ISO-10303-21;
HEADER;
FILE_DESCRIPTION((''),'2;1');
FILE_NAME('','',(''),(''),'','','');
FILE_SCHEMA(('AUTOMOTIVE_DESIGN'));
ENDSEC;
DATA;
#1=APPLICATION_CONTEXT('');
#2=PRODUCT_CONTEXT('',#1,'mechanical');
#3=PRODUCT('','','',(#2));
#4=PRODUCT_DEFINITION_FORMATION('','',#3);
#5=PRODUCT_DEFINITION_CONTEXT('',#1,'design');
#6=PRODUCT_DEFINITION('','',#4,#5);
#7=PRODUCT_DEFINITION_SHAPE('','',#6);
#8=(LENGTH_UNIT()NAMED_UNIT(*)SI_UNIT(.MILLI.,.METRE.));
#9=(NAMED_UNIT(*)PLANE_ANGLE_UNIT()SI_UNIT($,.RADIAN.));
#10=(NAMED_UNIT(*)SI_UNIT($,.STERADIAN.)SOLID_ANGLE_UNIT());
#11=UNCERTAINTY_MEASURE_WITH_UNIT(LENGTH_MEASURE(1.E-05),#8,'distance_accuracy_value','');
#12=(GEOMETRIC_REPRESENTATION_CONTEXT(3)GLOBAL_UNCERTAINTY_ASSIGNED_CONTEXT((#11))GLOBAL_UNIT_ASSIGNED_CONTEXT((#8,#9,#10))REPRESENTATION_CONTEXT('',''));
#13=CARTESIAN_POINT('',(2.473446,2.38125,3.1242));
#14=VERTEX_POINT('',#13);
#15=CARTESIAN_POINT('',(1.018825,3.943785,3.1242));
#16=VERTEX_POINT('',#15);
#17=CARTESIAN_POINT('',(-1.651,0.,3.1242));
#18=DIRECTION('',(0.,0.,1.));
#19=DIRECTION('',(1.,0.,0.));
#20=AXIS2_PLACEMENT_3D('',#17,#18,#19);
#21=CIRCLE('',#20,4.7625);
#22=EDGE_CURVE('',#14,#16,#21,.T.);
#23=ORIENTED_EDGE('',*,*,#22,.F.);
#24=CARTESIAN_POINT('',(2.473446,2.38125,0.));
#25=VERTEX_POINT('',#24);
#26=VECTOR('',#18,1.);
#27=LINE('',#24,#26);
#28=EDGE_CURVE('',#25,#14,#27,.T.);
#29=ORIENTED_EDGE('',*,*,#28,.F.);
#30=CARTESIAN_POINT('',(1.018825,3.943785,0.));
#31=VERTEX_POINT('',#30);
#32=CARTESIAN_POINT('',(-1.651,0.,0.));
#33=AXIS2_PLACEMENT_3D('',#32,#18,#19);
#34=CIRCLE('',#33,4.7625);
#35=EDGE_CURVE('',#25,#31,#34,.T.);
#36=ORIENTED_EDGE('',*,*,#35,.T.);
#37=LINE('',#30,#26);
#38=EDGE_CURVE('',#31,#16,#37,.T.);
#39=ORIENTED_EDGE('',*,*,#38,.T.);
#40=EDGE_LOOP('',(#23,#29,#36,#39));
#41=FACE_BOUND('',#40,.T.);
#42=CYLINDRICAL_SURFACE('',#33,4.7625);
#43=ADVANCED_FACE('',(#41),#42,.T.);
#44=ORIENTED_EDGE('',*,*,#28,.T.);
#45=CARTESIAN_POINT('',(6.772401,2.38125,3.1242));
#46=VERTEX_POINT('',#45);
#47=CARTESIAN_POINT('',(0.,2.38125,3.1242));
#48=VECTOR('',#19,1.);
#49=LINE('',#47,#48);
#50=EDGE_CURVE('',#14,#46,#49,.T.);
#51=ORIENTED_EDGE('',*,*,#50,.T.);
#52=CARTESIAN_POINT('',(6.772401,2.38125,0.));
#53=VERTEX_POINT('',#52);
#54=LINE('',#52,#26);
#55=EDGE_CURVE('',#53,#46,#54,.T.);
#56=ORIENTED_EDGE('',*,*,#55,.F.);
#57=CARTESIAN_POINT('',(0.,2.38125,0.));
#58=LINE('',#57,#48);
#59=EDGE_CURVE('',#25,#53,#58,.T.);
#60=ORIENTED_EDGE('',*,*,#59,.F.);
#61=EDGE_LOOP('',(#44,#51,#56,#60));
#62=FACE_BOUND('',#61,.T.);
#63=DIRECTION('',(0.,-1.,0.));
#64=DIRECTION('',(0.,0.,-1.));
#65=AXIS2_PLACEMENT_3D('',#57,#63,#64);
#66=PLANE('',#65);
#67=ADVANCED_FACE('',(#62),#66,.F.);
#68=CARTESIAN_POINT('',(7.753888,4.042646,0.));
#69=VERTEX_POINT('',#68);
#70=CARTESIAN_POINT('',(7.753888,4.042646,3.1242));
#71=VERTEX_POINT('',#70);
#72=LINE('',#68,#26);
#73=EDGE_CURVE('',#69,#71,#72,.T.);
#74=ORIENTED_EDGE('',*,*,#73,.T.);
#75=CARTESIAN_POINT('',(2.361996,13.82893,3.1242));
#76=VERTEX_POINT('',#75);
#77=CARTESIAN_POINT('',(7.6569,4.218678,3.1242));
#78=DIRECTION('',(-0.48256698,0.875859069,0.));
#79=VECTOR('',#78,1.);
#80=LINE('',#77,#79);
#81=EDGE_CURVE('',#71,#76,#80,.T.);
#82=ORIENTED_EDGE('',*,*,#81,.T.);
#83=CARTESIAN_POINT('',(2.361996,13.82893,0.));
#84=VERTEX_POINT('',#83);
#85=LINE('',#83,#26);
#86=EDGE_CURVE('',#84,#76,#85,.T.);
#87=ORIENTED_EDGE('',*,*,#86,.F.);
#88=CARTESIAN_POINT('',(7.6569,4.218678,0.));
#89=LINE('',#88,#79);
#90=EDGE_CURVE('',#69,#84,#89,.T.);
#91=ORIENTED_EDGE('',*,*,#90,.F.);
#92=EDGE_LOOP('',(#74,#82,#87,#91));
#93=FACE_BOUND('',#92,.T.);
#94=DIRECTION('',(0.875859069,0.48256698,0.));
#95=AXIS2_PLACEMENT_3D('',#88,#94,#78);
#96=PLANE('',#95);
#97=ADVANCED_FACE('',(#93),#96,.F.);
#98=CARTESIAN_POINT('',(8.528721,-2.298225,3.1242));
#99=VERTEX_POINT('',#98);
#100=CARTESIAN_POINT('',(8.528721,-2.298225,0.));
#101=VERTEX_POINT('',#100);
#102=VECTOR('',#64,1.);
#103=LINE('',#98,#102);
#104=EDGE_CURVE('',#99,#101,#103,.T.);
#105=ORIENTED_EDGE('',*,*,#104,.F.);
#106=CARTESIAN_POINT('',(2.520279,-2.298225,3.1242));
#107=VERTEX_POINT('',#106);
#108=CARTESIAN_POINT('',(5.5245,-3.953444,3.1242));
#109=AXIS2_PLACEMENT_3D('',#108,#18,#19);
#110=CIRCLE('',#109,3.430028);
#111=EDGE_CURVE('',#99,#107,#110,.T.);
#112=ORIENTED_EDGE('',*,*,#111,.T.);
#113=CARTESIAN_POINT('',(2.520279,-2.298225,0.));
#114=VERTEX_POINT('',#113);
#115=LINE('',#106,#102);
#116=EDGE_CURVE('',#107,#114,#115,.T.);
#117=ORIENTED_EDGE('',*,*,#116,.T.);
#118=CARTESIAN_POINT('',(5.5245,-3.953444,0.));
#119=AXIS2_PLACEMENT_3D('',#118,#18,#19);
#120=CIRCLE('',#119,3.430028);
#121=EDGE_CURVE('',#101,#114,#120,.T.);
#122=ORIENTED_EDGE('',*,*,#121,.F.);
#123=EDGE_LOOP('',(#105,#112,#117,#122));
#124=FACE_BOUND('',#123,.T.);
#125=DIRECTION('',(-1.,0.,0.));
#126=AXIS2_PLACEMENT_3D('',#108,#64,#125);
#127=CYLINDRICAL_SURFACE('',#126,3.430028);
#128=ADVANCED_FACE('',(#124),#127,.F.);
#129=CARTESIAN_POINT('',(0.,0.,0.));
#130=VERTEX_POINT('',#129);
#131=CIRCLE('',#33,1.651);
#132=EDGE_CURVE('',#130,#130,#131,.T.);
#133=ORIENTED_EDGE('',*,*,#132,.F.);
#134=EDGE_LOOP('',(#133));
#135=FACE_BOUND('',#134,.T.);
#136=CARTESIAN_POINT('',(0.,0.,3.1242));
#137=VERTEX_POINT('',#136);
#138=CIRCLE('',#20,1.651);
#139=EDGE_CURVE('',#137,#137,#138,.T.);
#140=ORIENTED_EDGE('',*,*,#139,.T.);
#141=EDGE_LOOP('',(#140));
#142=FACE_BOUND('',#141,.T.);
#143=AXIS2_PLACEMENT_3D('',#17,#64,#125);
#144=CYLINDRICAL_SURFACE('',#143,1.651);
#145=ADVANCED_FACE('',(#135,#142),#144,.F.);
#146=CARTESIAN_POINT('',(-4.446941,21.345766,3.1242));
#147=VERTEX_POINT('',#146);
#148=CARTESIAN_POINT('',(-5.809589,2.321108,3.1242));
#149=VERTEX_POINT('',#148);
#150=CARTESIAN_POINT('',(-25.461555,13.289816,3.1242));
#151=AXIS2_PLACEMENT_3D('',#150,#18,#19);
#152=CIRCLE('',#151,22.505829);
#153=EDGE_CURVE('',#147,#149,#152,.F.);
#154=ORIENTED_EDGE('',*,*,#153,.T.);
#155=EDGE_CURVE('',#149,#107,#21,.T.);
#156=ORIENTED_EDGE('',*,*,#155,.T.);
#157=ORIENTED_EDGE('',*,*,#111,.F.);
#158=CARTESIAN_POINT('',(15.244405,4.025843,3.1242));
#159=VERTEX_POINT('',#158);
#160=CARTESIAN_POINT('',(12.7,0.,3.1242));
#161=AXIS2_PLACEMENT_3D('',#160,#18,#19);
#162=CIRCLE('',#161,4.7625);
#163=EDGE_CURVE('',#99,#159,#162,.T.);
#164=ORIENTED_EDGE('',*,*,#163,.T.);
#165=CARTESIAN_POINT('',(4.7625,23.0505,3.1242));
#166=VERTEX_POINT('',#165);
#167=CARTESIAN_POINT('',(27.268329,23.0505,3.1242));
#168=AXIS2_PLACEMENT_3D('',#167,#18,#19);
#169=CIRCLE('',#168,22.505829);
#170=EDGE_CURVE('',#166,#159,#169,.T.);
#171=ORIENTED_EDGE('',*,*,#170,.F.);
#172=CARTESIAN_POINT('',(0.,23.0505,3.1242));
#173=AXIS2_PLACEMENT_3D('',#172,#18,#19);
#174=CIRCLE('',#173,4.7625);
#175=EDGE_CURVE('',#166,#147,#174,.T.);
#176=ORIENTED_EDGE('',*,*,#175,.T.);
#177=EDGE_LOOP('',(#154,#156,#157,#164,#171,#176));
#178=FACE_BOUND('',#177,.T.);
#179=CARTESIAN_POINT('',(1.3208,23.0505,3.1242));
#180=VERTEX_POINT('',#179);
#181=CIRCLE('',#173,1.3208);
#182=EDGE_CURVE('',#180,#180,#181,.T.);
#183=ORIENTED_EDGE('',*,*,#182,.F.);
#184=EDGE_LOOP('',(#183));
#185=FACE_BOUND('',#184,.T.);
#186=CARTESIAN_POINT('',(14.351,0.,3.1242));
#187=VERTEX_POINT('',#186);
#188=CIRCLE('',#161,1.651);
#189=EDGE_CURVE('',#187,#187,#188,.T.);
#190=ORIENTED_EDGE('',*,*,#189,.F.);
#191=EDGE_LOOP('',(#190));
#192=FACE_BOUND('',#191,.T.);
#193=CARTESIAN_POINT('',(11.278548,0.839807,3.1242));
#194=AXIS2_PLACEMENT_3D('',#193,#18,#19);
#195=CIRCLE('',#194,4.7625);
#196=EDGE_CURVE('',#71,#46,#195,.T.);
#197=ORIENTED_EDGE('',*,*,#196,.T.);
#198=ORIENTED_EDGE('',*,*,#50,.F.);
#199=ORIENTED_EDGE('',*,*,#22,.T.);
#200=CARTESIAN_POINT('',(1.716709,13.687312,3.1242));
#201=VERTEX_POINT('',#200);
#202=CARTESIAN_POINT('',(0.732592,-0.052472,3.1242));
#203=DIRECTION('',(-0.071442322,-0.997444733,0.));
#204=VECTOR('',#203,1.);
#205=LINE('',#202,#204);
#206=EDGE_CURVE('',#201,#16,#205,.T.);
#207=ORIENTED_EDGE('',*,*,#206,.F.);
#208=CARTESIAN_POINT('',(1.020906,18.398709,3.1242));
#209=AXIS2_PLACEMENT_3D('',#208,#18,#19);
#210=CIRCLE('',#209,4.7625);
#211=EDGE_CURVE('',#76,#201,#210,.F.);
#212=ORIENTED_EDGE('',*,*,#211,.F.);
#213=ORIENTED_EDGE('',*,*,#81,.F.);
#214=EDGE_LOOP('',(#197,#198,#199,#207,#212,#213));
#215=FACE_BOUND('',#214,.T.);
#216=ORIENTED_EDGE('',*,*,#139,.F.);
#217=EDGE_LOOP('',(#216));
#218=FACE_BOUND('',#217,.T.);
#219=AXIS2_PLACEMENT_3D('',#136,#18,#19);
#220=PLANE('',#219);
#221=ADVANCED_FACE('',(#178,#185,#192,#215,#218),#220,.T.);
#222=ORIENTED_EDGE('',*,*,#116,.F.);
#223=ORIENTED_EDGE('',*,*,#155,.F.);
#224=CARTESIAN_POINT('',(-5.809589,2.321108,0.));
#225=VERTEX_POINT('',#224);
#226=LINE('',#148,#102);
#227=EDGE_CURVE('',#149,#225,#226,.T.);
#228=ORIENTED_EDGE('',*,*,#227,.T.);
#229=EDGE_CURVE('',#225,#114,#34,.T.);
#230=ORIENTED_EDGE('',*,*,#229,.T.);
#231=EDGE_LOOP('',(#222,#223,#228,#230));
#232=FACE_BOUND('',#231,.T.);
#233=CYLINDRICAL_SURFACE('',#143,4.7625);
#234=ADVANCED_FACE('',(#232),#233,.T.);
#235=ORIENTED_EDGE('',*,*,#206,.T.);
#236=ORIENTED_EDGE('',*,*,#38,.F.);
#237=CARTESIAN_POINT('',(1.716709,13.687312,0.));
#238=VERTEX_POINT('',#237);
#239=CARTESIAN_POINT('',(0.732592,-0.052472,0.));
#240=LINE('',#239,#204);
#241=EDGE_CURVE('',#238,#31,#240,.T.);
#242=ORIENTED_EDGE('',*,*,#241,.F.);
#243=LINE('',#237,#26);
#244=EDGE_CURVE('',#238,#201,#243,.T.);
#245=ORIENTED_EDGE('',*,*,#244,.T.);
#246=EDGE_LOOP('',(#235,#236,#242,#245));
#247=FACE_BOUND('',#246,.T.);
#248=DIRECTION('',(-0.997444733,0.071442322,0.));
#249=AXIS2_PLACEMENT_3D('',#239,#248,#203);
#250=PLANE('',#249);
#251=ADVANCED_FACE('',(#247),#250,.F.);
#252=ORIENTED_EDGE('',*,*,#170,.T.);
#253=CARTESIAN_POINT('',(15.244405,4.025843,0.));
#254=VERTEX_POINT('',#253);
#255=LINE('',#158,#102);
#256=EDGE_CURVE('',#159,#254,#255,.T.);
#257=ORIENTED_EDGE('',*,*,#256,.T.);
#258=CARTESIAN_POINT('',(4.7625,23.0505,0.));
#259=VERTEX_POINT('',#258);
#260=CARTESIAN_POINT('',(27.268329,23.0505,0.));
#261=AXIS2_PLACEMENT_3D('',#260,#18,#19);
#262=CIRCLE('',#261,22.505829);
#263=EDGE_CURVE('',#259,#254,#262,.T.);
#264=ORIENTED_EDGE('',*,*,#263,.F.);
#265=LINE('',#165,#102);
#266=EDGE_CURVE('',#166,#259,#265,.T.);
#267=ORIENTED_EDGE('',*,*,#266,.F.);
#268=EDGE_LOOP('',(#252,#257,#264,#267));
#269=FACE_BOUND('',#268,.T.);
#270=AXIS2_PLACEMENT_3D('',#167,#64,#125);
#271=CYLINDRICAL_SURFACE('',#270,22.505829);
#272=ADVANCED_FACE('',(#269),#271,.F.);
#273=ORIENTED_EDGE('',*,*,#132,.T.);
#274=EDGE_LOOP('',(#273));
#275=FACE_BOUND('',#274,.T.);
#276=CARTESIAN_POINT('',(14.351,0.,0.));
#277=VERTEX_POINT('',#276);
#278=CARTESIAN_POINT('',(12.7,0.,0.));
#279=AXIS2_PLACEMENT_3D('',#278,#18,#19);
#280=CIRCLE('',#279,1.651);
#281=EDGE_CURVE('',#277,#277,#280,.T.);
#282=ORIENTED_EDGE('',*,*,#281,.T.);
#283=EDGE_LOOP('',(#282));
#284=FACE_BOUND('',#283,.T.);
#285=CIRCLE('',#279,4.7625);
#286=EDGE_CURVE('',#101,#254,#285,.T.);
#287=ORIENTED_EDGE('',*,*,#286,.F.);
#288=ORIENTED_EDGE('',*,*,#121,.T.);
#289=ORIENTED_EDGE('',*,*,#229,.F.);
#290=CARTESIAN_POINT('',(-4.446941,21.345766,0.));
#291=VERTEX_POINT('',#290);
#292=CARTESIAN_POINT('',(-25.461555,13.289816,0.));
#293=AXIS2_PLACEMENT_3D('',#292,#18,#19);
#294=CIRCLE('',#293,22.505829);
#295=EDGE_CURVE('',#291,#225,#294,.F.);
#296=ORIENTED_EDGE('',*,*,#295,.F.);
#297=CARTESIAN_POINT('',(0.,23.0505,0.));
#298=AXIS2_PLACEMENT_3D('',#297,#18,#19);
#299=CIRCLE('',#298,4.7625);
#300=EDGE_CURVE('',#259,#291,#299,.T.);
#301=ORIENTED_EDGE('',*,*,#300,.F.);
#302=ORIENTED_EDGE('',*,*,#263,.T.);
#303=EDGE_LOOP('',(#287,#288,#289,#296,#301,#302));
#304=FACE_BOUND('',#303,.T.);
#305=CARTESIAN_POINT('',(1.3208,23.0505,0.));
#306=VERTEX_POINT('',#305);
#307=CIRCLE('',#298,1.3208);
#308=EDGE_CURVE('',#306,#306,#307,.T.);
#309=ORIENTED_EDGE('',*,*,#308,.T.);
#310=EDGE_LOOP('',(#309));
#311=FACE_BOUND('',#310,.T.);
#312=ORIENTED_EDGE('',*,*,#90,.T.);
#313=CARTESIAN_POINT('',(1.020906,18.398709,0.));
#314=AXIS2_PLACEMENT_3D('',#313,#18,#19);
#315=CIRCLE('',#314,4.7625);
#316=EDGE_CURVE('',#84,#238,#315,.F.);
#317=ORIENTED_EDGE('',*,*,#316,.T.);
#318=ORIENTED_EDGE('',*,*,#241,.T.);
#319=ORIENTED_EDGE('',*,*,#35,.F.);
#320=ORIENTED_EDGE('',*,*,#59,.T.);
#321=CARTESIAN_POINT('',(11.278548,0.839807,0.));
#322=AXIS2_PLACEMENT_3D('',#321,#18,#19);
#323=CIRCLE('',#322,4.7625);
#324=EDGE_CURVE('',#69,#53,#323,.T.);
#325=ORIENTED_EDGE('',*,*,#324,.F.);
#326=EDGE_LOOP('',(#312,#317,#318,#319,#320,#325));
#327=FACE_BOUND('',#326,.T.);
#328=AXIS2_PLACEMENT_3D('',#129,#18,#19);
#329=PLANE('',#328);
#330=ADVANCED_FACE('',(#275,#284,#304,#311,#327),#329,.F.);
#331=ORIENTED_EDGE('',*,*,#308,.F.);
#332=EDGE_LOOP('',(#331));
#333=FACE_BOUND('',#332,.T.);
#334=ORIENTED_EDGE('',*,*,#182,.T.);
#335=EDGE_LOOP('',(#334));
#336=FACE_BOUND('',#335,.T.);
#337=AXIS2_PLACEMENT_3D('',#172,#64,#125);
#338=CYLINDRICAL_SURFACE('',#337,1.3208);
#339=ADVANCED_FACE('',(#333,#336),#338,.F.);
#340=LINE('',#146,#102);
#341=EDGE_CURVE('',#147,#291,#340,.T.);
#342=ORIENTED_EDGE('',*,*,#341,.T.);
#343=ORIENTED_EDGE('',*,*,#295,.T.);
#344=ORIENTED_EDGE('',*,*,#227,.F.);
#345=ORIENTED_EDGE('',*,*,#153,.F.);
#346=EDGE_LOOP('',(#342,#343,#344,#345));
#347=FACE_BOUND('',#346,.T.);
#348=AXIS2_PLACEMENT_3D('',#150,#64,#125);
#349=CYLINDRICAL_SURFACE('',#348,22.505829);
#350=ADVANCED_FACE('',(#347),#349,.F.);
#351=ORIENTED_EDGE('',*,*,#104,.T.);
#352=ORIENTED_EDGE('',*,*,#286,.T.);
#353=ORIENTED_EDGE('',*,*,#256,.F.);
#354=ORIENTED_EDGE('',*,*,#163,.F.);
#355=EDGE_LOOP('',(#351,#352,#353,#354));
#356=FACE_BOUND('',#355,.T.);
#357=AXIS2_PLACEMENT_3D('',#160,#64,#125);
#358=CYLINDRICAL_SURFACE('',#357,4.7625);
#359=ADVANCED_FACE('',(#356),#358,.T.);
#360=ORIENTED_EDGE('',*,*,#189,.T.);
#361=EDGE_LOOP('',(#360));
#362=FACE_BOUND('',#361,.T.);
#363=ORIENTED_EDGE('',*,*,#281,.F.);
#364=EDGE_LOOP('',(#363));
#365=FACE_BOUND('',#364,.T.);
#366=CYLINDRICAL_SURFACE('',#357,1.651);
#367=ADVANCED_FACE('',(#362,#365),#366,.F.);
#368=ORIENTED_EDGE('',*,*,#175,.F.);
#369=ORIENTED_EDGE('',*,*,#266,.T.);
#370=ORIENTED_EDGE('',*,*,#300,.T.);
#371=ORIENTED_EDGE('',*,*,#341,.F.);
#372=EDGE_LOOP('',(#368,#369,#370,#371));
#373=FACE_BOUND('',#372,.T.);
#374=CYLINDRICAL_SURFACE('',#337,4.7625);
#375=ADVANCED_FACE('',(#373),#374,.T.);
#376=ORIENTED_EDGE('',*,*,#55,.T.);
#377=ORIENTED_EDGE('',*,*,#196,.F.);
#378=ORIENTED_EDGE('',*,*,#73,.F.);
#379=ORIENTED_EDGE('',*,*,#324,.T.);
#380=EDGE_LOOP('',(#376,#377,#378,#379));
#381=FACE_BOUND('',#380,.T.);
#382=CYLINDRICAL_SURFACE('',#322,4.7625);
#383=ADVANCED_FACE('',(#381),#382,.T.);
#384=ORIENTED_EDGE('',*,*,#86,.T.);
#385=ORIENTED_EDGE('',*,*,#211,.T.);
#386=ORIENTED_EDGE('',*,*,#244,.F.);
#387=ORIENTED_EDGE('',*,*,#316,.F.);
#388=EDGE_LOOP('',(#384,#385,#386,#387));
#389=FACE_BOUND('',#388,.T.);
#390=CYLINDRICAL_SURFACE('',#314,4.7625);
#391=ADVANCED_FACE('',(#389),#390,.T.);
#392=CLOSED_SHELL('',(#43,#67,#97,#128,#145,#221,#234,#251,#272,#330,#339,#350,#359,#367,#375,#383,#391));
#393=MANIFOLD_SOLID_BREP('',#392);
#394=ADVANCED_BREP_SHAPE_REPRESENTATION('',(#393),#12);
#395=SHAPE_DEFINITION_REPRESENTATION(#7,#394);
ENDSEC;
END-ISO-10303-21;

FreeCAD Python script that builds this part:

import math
import FreeCAD as App
import Part
import Sketcher

V = App.Vector
Q = App.Units.Quantity


def add_polygon(sketch, points):
    """Adds a closed chain of lines whose ends are joined by coincident constraints."""
    first, n = sketch.GeometryCount, len(points)
    for a, b in zip(points, points[1:] + points[:1]):
        sketch.addGeometry(Part.LineSegment(App.Vector(*a, 0), App.Vector(*b, 0)), False)
    for i in range(n):
        sketch.addConstraint(Sketcher.Constraint("Coincident", first + i, 2, first + (i + 1) % n, 1))

doc = App.newDocument("Part")
body = doc.addObject("PartDesign::Body", "Body")

# Sketch on XY plane
sketch1 = body.newObject("Sketcher::SketchObject", "Sketch")
sketch1.AttachmentSupport = (doc.getObject("XY_Plane"), [""])
sketch1.MapMode = "FlatFace"
sketch1.addGeometry(Part.ArcOfCircle(Part.Circle(V(5.5245, -3.953444, 0), V(0, 0, 1), 3.430028), math.radians(28.85319), math.radians(151.14681)), False)  # 0
sketch1.addGeometry(Part.ArcOfCircle(Part.Circle(V(12.7, 0, 0), V(0, 0, 1), 4.7625), math.radians(-151.14681), math.radians(57.70638)), False)  # 1
sketch1.addGeometry(Part.ArcOfCircle(Part.Circle(V(27.268329, 23.0505, 0), V(0, 0, 1), 22.505829), math.radians(180), math.radians(237.70638)), False)  # 2
sketch1.addGeometry(Part.ArcOfCircle(Part.Circle(V(0, 23.0505, 0), V(0, 0, 1), 4.7625), math.radians(0), math.radians(200.97432)), False)  # 3
sketch1.addGeometry(Part.ArcOfCircle(Part.Circle(V(-25.461555, 13.289816, 0), V(0, 0, 1), 22.505829), math.radians(-29.167987), math.radians(20.97432)), False)  # 4
sketch1.addGeometry(Part.ArcOfCircle(Part.Circle(V(-1.651, 0, 0), V(0, 0, 1), 4.7625), math.radians(150.832013), math.radians(331.14681)), False)  # 5
sketch1.addGeometry(Part.Circle(V(-1.651, 0, 0), V(0, 0, 1), 1.651), False)  # 6
add_polygon(sketch1, [(3.599844, 6.647688), (4.638514, 4.7625), (3.464816, 4.7625)])  # lines 7-9
sketch1.addGeometry(Part.Circle(V(12.7, 0, 0), V(0, 0, 1), 1.651), False)  # 10
sketch1.addGeometry(Part.Circle(V(0, 23.0505, 0), V(0, 0, 1), 1.3208), False)  # 11
sketch1.addConstraint([
    Sketcher.Constraint("Tangent", 0, 1, 1, 1),
    Sketcher.Constraint("Tangent", 1, 2, 2, 2),
    Sketcher.Constraint("Tangent", 2, 1, 3, 1),
    Sketcher.Constraint("Tangent", 3, 2, 4, 2),
    Sketcher.Constraint("Tangent", 4, 1, 5, 1),
    Sketcher.Constraint("Tangent", 5, 2, 0, 2),
    Sketcher.Constraint("Horizontal", 8),
    Sketcher.Constraint("Coincident", 6, 3, 5, 3),
    Sketcher.Constraint("Coincident", 10, 3, 1, 3),
    Sketcher.Constraint("Coincident", 11, 3, 3, 3),
    Sketcher.Constraint("Equal", 1, 3),
    Sketcher.Constraint("Equal", 2, 4),
    Sketcher.Constraint("Equal", 3, 5),
    Sketcher.Constraint("Equal", 6, 10),
    Sketcher.Constraint("PointOnObject", 1, 3, -1),
    Sketcher.Constraint("PointOnObject", 3, 3, -2),
    Sketcher.Constraint("PointOnObject", 5, 3, -1),
    Sketcher.Constraint("Horizontal", 2, 3, 3, 3),
    Sketcher.Constraint("Diameter", 6, Q("0.13 in")),
    Sketcher.Constraint("Diameter", 11, Q("0.104 in")),
    Sketcher.Constraint("Radius", 1, Q("0.1875 in")),
    Sketcher.Constraint("DistanceX", -1, 1, 1, 3, Q("0.5 in")),
    Sketcher.Constraint("DistanceX", 5, 3, -1, 1, Q("0.065 in")),
    Sketcher.Constraint("DistanceY", -1, 1, 7, 2, Q("0.1875 in")),
    Sketcher.Constraint("Radius", 0, Q("3.430028 mm")),
    Sketcher.Constraint("Radius", 2, Q("22.505829 mm")),
    Sketcher.Constraint("DistanceX", 8, 2, 8, 1, Q("1.173698 mm")),
    Sketcher.Constraint("DistanceX", 9, 2, 7, 2, Q("1.038671 mm")),
    Sketcher.Constraint("Distance", 7, Q("2.152387 mm")),
    Sketcher.Constraint("DistanceX", -1, 1, 7, 2, Q("4.638514 mm")),
])
pad1 = body.newObject("PartDesign::Pad", "Pad")
pad1.Profile = sketch1
pad1.Length = Q("0.123 in")

# Sketch on XY plane
sketch2 = body.newObject("Sketcher::SketchObject", "Sketch001")
sketch2.AttachmentSupport = (doc.getObject("XY_Plane"), [""])
sketch2.MapMode = "FlatFace"
sketch2.AttachmentOffset = App.Placement(V(0, 0, 0.123 * 25.4), App.Rotation())
sketch2.addGeometry([
    Part.ArcOfCircle(Part.Circle(V(11.278548, 0.839807, 0), V(0, 0, 1), 4.7625), math.radians(137.738761), math.radians(161.115436)),  # 0
    Part.LineSegment(V(7.753888, 4.042646, 0), V(2.361996, 13.82893, 0)),  # 1
    Part.ArcOfCircle(Part.Circle(V(1.020906, 18.398709, 0), V(0, 0, 1), 4.7625), math.radians(-81.599003), math.radians(-73.644664)),  # 2
    Part.LineSegment(V(1.716709, 13.687312, 0), V(1.018825, 3.943785, 0)),  # 3
    Part.ArcOfCircle(Part.Circle(V(-1.651, 0, 0), V(0, 0, 1), 4.7625), math.radians(30), math.radians(55.903166)),  # 4
    Part.LineSegment(V(2.473446, 2.38125, 0), V(6.772401, 2.38125, 0)),  # 5
], False)
sketch2.addConstraint([
    Sketcher.Constraint("Coincident", 0, 1, 1, 1),
    Sketcher.Constraint("Coincident", 1, 2, 2, 2),
    Sketcher.Constraint("Coincident", 2, 1, 3, 1),
    Sketcher.Constraint("Coincident", 3, 2, 4, 2),
    Sketcher.Constraint("Coincident", 4, 1, 5, 1),
    Sketcher.Constraint("Coincident", 5, 2, 0, 2),
    Sketcher.Constraint("Horizontal", 5),
    Sketcher.Constraint("Equal", 0, 2),
    Sketcher.Constraint("Equal", 2, 4),
    Sketcher.Constraint("PointOnObject", 4, 3, -1),
    Sketcher.Constraint("Radius", 0, Q("0.1875 in")),
    Sketcher.Constraint("DistanceX", 4, 3, -1, 1, Q("0.065 in")),
    Sketcher.Constraint("DistanceY", -1, 1, 4, 1, Q("0.09375 in")),
    Sketcher.Constraint("DistanceX", -1, 1, 5, 2, Q("6.772401 mm")),
    Sketcher.Constraint("Distance", 3, Q("9.768488 mm")),
    Sketcher.Constraint("DistanceX", -1, 1, 0, 3, Q("11.278548 mm")),
    Sketcher.Constraint("DistanceY", -1, 1, 2, 3, Q("18.398709 mm")),
    Sketcher.Constraint("DistanceY", -1, 1, 1, 2, Q("13.82893 mm")),
    Sketcher.Constraint("DistanceX", -1, 1, 2, 1, Q("1.716709 mm")),
    Sketcher.Constraint("DistanceY", -1, 1, 2, 1, Q("13.687312 mm")),
    Sketcher.Constraint("DistanceX", 0, 1, 0, 3, Q("3.524661 mm")),
])
pocket1 = body.newObject("PartDesign::Pocket", "Pocket")
pocket1.Profile = sketch2
pocket1.Length = Q("0.123 in")

doc.recompute()
